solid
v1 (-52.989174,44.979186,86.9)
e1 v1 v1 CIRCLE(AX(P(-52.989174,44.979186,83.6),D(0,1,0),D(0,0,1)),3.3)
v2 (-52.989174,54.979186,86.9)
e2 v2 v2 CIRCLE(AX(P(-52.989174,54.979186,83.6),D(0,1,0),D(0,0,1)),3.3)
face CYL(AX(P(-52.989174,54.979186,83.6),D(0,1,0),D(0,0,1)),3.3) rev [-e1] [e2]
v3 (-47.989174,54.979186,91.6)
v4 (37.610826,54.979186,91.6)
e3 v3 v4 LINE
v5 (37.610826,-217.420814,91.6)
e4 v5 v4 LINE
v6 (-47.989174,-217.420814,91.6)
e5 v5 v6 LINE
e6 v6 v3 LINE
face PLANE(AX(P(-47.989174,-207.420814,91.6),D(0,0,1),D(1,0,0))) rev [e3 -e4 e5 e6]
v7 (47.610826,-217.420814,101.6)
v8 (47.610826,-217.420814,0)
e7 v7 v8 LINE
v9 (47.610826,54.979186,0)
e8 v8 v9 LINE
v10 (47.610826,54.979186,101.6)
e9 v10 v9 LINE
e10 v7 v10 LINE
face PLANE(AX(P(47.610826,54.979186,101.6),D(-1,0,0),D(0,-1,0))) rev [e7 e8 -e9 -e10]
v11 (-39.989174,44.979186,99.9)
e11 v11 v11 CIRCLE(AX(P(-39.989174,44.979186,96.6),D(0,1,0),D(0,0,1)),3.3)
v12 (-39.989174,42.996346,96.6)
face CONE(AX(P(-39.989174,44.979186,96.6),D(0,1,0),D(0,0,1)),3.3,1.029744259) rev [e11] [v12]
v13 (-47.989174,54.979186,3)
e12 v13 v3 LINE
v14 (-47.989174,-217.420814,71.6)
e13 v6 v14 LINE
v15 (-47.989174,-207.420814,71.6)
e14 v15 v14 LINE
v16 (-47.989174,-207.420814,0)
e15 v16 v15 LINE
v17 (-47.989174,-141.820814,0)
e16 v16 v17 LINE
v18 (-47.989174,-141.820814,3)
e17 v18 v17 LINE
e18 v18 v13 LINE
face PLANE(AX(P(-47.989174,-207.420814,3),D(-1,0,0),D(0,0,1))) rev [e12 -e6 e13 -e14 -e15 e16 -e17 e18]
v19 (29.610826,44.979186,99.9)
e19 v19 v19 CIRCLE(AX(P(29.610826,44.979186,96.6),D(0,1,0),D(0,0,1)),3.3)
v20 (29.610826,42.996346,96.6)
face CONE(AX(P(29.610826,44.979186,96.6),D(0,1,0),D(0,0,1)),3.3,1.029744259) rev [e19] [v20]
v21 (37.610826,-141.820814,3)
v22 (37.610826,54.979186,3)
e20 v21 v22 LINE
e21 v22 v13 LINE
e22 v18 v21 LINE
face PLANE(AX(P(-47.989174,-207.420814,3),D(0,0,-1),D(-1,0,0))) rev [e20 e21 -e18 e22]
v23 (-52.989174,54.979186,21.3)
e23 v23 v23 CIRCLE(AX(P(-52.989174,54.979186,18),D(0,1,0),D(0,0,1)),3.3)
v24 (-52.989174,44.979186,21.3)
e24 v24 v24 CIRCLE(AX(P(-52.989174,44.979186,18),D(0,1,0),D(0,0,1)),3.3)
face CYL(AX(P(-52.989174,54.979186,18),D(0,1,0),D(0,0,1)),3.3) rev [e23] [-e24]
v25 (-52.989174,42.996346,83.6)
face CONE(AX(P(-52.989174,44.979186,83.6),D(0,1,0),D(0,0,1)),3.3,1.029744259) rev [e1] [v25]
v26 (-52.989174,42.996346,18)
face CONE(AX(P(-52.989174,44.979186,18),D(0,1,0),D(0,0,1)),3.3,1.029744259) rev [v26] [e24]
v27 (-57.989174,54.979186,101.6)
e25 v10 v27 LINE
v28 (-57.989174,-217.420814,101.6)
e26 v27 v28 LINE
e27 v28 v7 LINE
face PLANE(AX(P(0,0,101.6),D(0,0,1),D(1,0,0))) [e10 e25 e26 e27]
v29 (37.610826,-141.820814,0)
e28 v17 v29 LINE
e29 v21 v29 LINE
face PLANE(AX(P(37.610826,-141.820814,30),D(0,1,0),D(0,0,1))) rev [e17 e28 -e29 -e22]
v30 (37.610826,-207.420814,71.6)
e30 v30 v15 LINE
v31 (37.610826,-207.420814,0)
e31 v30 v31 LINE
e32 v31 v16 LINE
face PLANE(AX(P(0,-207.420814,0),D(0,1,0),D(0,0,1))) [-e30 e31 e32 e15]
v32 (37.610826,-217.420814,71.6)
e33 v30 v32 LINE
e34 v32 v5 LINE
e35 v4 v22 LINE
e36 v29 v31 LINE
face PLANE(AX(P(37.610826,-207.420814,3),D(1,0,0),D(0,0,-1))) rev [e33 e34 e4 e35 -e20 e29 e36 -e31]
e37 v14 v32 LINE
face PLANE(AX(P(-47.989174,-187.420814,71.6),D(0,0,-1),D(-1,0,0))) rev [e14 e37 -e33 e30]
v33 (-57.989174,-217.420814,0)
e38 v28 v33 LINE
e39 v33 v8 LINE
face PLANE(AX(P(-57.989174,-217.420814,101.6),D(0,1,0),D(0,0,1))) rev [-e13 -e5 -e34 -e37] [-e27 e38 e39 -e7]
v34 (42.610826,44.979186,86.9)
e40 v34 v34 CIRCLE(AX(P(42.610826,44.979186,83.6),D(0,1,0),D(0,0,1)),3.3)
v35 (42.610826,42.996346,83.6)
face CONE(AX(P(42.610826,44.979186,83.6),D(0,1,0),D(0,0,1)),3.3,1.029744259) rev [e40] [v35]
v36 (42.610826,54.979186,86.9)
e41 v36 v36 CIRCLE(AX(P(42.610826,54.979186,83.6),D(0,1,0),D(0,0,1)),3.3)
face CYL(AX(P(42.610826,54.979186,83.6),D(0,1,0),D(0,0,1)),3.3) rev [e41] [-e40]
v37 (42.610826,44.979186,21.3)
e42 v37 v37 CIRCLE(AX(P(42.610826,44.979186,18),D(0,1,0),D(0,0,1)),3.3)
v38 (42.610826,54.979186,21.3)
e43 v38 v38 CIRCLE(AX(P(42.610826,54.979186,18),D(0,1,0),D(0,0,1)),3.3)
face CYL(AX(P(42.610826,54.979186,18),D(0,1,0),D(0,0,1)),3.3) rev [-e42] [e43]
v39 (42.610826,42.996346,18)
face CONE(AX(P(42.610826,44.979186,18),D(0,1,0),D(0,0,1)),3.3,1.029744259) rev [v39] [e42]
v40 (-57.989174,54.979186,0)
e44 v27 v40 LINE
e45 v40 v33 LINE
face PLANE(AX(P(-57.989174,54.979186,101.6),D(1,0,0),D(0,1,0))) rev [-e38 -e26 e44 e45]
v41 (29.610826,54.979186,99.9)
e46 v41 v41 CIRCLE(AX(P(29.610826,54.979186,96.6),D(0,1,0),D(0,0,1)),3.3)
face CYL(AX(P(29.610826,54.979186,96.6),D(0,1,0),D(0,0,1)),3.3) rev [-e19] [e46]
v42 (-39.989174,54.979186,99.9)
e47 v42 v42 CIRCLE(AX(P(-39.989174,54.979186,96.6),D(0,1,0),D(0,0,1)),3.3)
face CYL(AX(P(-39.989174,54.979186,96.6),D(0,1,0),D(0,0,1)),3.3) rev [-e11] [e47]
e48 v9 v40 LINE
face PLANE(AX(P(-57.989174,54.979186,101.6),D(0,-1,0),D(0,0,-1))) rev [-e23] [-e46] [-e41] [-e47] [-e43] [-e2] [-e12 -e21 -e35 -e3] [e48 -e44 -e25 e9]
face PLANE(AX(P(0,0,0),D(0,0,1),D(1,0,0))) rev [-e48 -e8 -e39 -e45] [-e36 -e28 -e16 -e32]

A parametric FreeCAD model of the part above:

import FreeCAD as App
import Part
import Sketcher

doc = App.newDocument("Part")
params = doc.addObject("Spreadsheet::Sheet", "Params")
for row, (alias, value) in enumerate([
    ("sketch1_width", "105.6 mm"),
    ("sketch1_height", "272.4 mm"),
    ("pad1_length", "101.6 mm"),
    ("sketch2_width", "85.6 mm"),
    ("sketch2_height", "88.6 mm"),
    ("pocket1_length", "262.4 mm"),
    ("sketch3_height", "20 mm"),
    ("sketch3_width", "85.6 mm"),
    ("pocket2_length", "30 mm"),
    ("sketch4_width", "85.6 mm"),
    ("sketch4_height", "65.6 mm"),
    ("pocket3_length", "30 mm"),
    ("sketch5_diameter", "6.6 mm"),
    ("hole_diameter", "6.6 mm"),
    ("hole_depth", "10 mm"),
], start=1):
    params.set(f"A{row}", alias)
    params.set(f"B{row}", "=" + value)
    params.setAlias(f"B{row}", alias)

body = doc.addObject("PartDesign::Body", "Body")

sketch1 = body.newObject("Sketcher::SketchObject", "Sketch")
sketch1.AttachmentSupport = (doc.getObject("XY_Plane"), [""])
sketch1.MapMode = "FlatFace"
sketch1.addGeometry(Part.LineSegment(App.Vector(-58, 55, 0), App.Vector(-58, -217, 0)), False)
sketch1.addGeometry(Part.LineSegment(App.Vector(-58, -217, 0), App.Vector(48, -217, 0)), False)
sketch1.addGeometry(Part.LineSegment(App.Vector(48, -217, 0), App.Vector(48, 55, 0)), False)
sketch1.addGeometry(Part.LineSegment(App.Vector(48, 55, 0), App.Vector(-58, 55, 0)), False)
sketch1.addConstraint(Sketcher.Constraint("Coincident", 0, 2, 1, 1))
sketch1.addConstraint(Sketcher.Constraint("Coincident", 1, 2, 2, 1))
sketch1.addConstraint(Sketcher.Constraint("Coincident", 2, 2, 3, 1))
sketch1.addConstraint(Sketcher.Constraint("Coincident", 3, 2, 0, 1))
sketch1.addConstraint(Sketcher.Constraint("Vertical", 0))
sketch1.addConstraint(Sketcher.Constraint("Horizontal", 1))
sketch1.addConstraint(Sketcher.Constraint("Vertical", 2))
sketch1.addConstraint(Sketcher.Constraint("Horizontal", 3))
sketch1.addConstraint(Sketcher.Constraint("DistanceX", 1, 1, 1, 2, 105.6))
sketch1.addConstraint(Sketcher.Constraint("DistanceY", 0, 2, 0, 1, 272.4))
sketch1.addConstraint(Sketcher.Constraint("DistanceX", 0, 2, -1, 1, 57.989174))
sketch1.addConstraint(Sketcher.Constraint("DistanceY", 0, 2, -1, 1, 217.420814))
sketch1.setExpression("Constraints[8]", "Params.sketch1_width")
sketch1.setExpression("Constraints[9]", "Params.sketch1_height")
pad1 = body.newObject("PartDesign::Pad", "Pad")
pad1.Profile = sketch1
pad1.setExpression("Length", "Params.pad1_length")

sketch2 = body.newObject("Sketcher::SketchObject", "Sketch001")
sketch2.AttachmentSupport = (doc.getObject("XZ_Plane"), [""])
sketch2.MapMode = "FlatFace"
sketch2.AttachmentOffset = App.Placement(App.Vector(0, 0, -54.979186), App.Rotation())
sketch2.addGeometry(Part.LineSegment(App.Vector(-48, 3, 0), App.Vector(-48, 92, 0)), False)
sketch2.addGeometry(Part.LineSegment(App.Vector(-48, 92, 0), App.Vector(38, 92, 0)), False)
sketch2.addGeometry(Part.LineSegment(App.Vector(38, 92, 0), App.Vector(38, 3, 0)), False)
sketch2.addGeometry(Part.LineSegment(App.Vector(38, 3, 0), App.Vector(-48, 3, 0)), False)
sketch2.addConstraint(Sketcher.Constraint("Coincident", 0, 2, 1, 1))
sketch2.addConstraint(Sketcher.Constraint("Coincident", 1, 2, 2, 1))
sketch2.addConstraint(Sketcher.Constraint("Coincident", 2, 2, 3, 1))
sketch2.addConstraint(Sketcher.Constraint("Coincident", 3, 2, 0, 1))
sketch2.addConstraint(Sketcher.Constraint("Vertical", 0))
sketch2.addConstraint(Sketcher.Constraint("Horizontal", 1))
sketch2.addConstraint(Sketcher.Constraint("Vertical", 2))
sketch2.addConstraint(Sketcher.Constraint("Horizontal", 3))
sketch2.addConstraint(Sketcher.Constraint("DistanceX", 1, 1, 1, 2, 85.6))
sketch2.addConstraint(Sketcher.Constraint("DistanceY", 0, 1, 0, 2, 88.6))
sketch2.addConstraint(Sketcher.Constraint("DistanceY", -1, 1, 2, 2, 3.0))
sketch2.addConstraint(Sketcher.Constraint("DistanceX", 0, 2, -1, 1, 47.989174))
sketch2.setExpression("Constraints[8]", "Params.sketch2_width")
sketch2.setExpression("Constraints[9]", "Params.sketch2_height")
pocket1 = body.newObject("PartDesign::Pocket", "Pocket")
pocket1.Profile = sketch2
pocket1.setExpression("Length", "Params.pocket1_length")
pocket1.Reversed = True

sketch3 = body.newObject("Sketcher::SketchObject", "Sketch002")
sketch3.AttachmentSupport = (doc.getObject("XZ_Plane"), [""])
sketch3.MapMode = "FlatFace"
sketch3.AttachmentOffset = App.Placement(App.Vector(0, 0, 217.420814), App.Rotation())
sketch3.addGeometry(Part.LineSegment(App.Vector(-48, 92, 0), App.Vector(-48, 72, 0)), False)
sketch3.addGeometry(Part.LineSegment(App.Vector(-48, 72, 0), App.Vector(38, 72, 0)), False)
sketch3.addGeometry(Part.LineSegment(App.Vector(38, 72, 0), App.Vector(38, 92, 0)), False)
sketch3.addGeometry(Part.LineSegment(App.Vector(38, 92, 0), App.Vector(-48, 92, 0)), False)
sketch3.addConstraint(Sketcher.Constraint("Coincident", 0, 2, 1, 1))
sketch3.addConstraint(Sketcher.Constraint("Coincident", 1, 2, 2, 1))
sketch3.addConstraint(Sketcher.Constraint("Coincident", 2, 2, 3, 1))
sketch3.addConstraint(Sketcher.Constraint("Coincident", 3, 2, 0, 1))
sketch3.addConstraint(Sketcher.Constraint("Vertical", 0))
sketch3.addConstraint(Sketcher.Constraint("Horizontal", 1))
sketch3.addConstraint(Sketcher.Constraint("Vertical", 2))
sketch3.addConstraint(Sketcher.Constraint("Horizontal", 3))
sketch3.addConstraint(Sketcher.Constraint("DistanceY", 0, 2, 0, 1, 20.0))
sketch3.addConstraint(Sketcher.Constraint("DistanceX", 1, 1, 1, 2, 85.6))
sketch3.addConstraint(Sketcher.Constraint("DistanceY", -1, 1, 0, 2, 71.6))
sketch3.addConstraint(Sketcher.Constraint("DistanceX", 0, 2, -1, 1, 47.989174))
sketch3.setExpression("Constraints[8]", "Params.sketch3_height")
sketch3.setExpression("Constraints[9]", "Params.sketch3_width")
pocket2 = body.newObject("PartDesign::Pocket", "Pocket001")
pocket2.Profile = sketch3
pocket2.setExpression("Length", "Params.pocket2_length")

sketch4 = body.newObject("Sketcher::SketchObject", "Sketch003")
sketch4.AttachmentSupport = (doc.getObject("XY_Plane"), [""])
sketch4.MapMode = "FlatFace"
sketch4.addGeometry(Part.LineSegment(App.Vector(38, -142, 0), App.Vector(38, -207, 0)), False)
sketch4.addGeometry(Part.LineSegment(App.Vector(38, -207, 0), App.Vector(-48, -207, 0)), False)
sketch4.addGeometry(Part.LineSegment(App.Vector(-48, -207, 0), App.Vector(-48, -142, 0)), False)
sketch4.addGeometry(Part.LineSegment(App.Vector(-48, -142, 0), App.Vector(38, -142, 0)), False)
sketch4.addConstraint(Sketcher.Constraint("Coincident", 0, 2, 1, 1))
sketch4.addConstraint(Sketcher.Constraint("Coincident", 1, 2, 2, 1))
sketch4.addConstraint(Sketcher.Constraint("Coincident", 2, 2, 3, 1))
sketch4.addConstraint(Sketcher.Constraint("Coincident", 3, 2, 0, 1))
sketch4.addConstraint(Sketcher.Constraint("Vertical", 0))
sketch4.addConstraint(Sketcher.Constraint("Horizontal", 1))
sketch4.addConstraint(Sketcher.Constraint("Vertical", 2))
sketch4.addConstraint(Sketcher.Constraint("Horizontal", 3))
sketch4.addConstraint(Sketcher.Constraint("DistanceX", 1, 2, 1, 1, 85.6))
sketch4.addConstraint(Sketcher.Constraint("DistanceY", 0, 2, 0, 1, 65.6))
sketch4.addConstraint(Sketcher.Constraint("DistanceX", -1, 1, 0, 2, 37.610826))
sketch4.addConstraint(Sketcher.Constraint("DistanceY", 0, 2, -1, 1, 207.420814))
sketch4.setExpression("Constraints[8]", "Params.sketch4_width")
sketch4.setExpression("Constraints[9]", "Params.sketch4_height")
pocket3 = body.newObject("PartDesign::Pocket", "Pocket002")
pocket3.Profile = sketch4
pocket3.setExpression("Length", "Params.pocket3_length")
pocket3.Reversed = True

sketch5 = body.newObject("Sketcher::SketchObject", "Sketch004")
sketch5.AttachmentSupport = (doc.getObject("XZ_Plane"), [""])
sketch5.MapMode = "FlatFace"
sketch5.AttachmentOffset = App.Placement(App.Vector(0, 0, -54.979186), App.Rotation())
sketch5.addGeometry(Part.Circle(App.Vector(-53, 18, 0), App.Vector(0, 0, 1), 3.3), False)
sketch5.addGeometry(Part.Circle(App.Vector(-53, 83.6, 0), App.Vector(0, 0, 1), 3.3), False)
sketch5.addGeometry(Part.Circle(App.Vector(42.6, 18, 0), App.Vector(0, 0, 1), 3.3), False)
sketch5.addGeometry(Part.Circle(App.Vector(42.6, 83.6, 0), App.Vector(0, 0, 1), 3.3), False)
sketch5.addGeometry(Part.Circle(App.Vector(-40, 96.6, 0), App.Vector(0, 0, 1), 3.3), False)
sketch5.addGeometry(Part.Circle(App.Vector(29.6, 96.6, 0), App.Vector(0, 0, 1), 3.3), False)
sketch5.addConstraint(Sketcher.Constraint("Equal", 0, 1))
sketch5.addConstraint(Sketcher.Constraint("Equal", 1, 2))
sketch5.addConstraint(Sketcher.Constraint("Equal", 2, 3))
sketch5.addConstraint(Sketcher.Constraint("Equal", 3, 4))
sketch5.addConstraint(Sketcher.Constraint("Equal", 4, 5))
sketch5.addConstraint(Sketcher.Constraint("Horizontal", 0, 3, 2, 3))
sketch5.addConstraint(Sketcher.Constraint("Horizontal", 1, 3, 3, 3))
sketch5.addConstraint(Sketcher.Constraint("Horizontal", 4, 3, 5, 3))
sketch5.addConstraint(Sketcher.Constraint("Vertical", 0, 3, 1, 3))
sketch5.addConstraint(Sketcher.Constraint("Vertical", 2, 3, 3, 3))
sketch5.addConstraint(Sketcher.Constraint("Diameter", 0, 6.6))
sketch5.addConstraint(Sketcher.Constraint("DistanceY", -1, 1, 0, 3, 18.0))
sketch5.addConstraint(Sketcher.Constraint("DistanceX", 1, 3, 4, 3, 13.0))
sketch5.addConstraint(Sketcher.Constraint("DistanceY", 1, 3, 4, 3, 13.0))
sketch5.addConstraint(Sketcher.Constraint("DistanceX", 5, 3, 3, 3, 13.0))
sketch5.addConstraint(Sketcher.Constraint("DistanceY", -1, 1, 1, 3, 83.6))
sketch5.addConstraint(Sketcher.Constraint("DistanceX", 0, 3, 2, 3, 95.6))
sketch5.addConstraint(Sketcher.Constraint("DistanceX", 0, 3, -1, 1, 52.989174))
sketch5.setExpression("Constraints[10]", "Params.sketch5_diameter")
doc.recompute()
hole = body.newObject("PartDesign::Hole", "Hole")
hole.Profile = sketch5
hole.ThreadType = "None"
hole.setExpression("Diameter", "Params.hole_diameter")
hole.DepthType = "Dimension"
hole.setExpression("Depth", "Params.hole_depth")
hole.DrillPoint = "Angled"
hole.DrillPointAngle = 118
hole.Reversed = True

doc.recompute()
